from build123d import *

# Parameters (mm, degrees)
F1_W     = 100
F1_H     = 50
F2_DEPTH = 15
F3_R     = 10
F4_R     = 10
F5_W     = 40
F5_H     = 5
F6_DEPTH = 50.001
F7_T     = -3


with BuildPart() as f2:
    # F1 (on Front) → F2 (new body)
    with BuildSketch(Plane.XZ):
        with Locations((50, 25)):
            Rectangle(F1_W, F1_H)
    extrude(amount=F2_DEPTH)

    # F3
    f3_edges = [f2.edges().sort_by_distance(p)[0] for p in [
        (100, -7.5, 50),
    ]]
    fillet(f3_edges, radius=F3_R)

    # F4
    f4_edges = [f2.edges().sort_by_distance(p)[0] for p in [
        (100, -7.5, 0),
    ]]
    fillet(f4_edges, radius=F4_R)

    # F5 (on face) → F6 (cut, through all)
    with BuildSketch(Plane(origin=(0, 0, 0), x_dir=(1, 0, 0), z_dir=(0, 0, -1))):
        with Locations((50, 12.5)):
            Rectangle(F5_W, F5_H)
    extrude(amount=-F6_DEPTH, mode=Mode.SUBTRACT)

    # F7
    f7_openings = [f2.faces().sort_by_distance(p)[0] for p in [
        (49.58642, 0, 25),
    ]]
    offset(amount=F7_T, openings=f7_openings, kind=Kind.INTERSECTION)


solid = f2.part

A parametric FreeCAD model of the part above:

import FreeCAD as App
import Part
import Sketcher

V = App.Vector


def edges_at(feature, points):
    """Names of the edges that pass closest to the given points."""
    edges = feature.Shape.Edges
    near = lambda p: min(range(len(edges)), key=lambda i: edges[i].distToShape(Part.Vertex(*p))[0])
    return sorted({f"Edge{near(p) + 1}" for p in points})


def faces_at(feature, points):
    """Names of the faces that lie closest to the given points."""
    faces = feature.Shape.Faces
    near = lambda p: min(range(len(faces)), key=lambda i: faces[i].distToShape(Part.Vertex(*p))[0])
    return sorted({f"Face{near(p) + 1}" for p in points})


def add_polygon(sketch, points):
    """Adds a closed chain of lines whose ends are joined by coincident constraints."""
    first, n = sketch.GeometryCount, len(points)
    for a, b in zip(points, points[1:] + points[:1]):
        sketch.addGeometry(Part.LineSegment(App.Vector(*a, 0), App.Vector(*b, 0)), False)
    for i in range(n):
        sketch.addConstraint(Sketcher.Constraint("Coincident", first + i, 2, first + (i + 1) % n, 1))

doc = App.newDocument("Part")
body = doc.addObject("PartDesign::Body", "Body")

# Sketch on XZ plane
sketch1 = body.newObject("Sketcher::SketchObject", "Sketch")
sketch1.AttachmentSupport = (doc.getObject("XZ_Plane"), [""])
sketch1.MapMode = "FlatFace"
add_polygon(sketch1, [(0, 50), (0, 0), (100, 0), (100, 50)])  # lines 0-3
sketch1.addConstraint(Sketcher.Constraint("Vertical", 0))
sketch1.addConstraint(Sketcher.Constraint("Horizontal", 1))
sketch1.addConstraint(Sketcher.Constraint("Vertical", 2))
sketch1.addConstraint(Sketcher.Constraint("Horizontal", 3))
sketch1.addConstraint(Sketcher.Constraint("Coincident", 0, 2, -1, 1))
sketch1.addConstraint(Sketcher.Constraint("DistanceX", 1, 1, 1, 2, 100.0))
sketch1.addConstraint(Sketcher.Constraint("DistanceY", 0, 2, 0, 1, 50.0))
pad1 = body.newObject("PartDesign::Pad", "Pad")
pad1.Profile = sketch1
pad1.Length = 15
doc.recompute()

fillet = body.newObject("PartDesign::Fillet", "Fillet")
fillet.Base = (pad1, edges_at(pad1, [(100, -7.5, 50)]))
fillet.Radius = 10
doc.recompute()

fillet2 = body.newObject("PartDesign::Fillet", "Fillet001")
fillet2.Base = (fillet, edges_at(fillet, [(100, -7.5, 0)]))
fillet2.Radius = 10

# Sketch on XY plane
sketch2 = body.newObject("Sketcher::SketchObject", "Sketch001")
sketch2.AttachmentSupport = (doc.getObject("XY_Plane"), [""])
sketch2.MapMode = "FlatFace"
add_polygon(sketch2, [(30, -15), (30, -10), (70, -10), (70, -15)])  # lines 0-3
sketch2.addConstraint(Sketcher.Constraint("Vertical", 0))
sketch2.addConstraint(Sketcher.Constraint("Horizontal", 1))
sketch2.addConstraint(Sketcher.Constraint("Vertical", 2))
sketch2.addConstraint(Sketcher.Constraint("Horizontal", 3))
sketch2.addConstraint(Sketcher.Constraint("DistanceX", 1, 1, 1, 2, 40.0))
sketch2.addConstraint(Sketcher.Constraint("DistanceY", 0, 1, 0, 2, 5.0))
sketch2.addConstraint(Sketcher.Constraint("DistanceX", -1, 1, 0, 2, 30.0))
sketch2.addConstraint(Sketcher.Constraint("DistanceY", 0, 2, -1, 1, 10.0))
pocket1 = body.newObject("PartDesign::Pocket", "Pocket")
pocket1.Profile = sketch2
pocket1.Type = "ThroughAll"
pocket1.Reversed = True
doc.recompute()

thickness = body.newObject("PartDesign::Thickness", "Thickness")
thickness.Base = (pocket1, faces_at(pocket1, [(50, 0, 25)]))
thickness.Value = 3
thickness.Reversed = True
thickness.Join = "Intersection"

doc.recompute()
